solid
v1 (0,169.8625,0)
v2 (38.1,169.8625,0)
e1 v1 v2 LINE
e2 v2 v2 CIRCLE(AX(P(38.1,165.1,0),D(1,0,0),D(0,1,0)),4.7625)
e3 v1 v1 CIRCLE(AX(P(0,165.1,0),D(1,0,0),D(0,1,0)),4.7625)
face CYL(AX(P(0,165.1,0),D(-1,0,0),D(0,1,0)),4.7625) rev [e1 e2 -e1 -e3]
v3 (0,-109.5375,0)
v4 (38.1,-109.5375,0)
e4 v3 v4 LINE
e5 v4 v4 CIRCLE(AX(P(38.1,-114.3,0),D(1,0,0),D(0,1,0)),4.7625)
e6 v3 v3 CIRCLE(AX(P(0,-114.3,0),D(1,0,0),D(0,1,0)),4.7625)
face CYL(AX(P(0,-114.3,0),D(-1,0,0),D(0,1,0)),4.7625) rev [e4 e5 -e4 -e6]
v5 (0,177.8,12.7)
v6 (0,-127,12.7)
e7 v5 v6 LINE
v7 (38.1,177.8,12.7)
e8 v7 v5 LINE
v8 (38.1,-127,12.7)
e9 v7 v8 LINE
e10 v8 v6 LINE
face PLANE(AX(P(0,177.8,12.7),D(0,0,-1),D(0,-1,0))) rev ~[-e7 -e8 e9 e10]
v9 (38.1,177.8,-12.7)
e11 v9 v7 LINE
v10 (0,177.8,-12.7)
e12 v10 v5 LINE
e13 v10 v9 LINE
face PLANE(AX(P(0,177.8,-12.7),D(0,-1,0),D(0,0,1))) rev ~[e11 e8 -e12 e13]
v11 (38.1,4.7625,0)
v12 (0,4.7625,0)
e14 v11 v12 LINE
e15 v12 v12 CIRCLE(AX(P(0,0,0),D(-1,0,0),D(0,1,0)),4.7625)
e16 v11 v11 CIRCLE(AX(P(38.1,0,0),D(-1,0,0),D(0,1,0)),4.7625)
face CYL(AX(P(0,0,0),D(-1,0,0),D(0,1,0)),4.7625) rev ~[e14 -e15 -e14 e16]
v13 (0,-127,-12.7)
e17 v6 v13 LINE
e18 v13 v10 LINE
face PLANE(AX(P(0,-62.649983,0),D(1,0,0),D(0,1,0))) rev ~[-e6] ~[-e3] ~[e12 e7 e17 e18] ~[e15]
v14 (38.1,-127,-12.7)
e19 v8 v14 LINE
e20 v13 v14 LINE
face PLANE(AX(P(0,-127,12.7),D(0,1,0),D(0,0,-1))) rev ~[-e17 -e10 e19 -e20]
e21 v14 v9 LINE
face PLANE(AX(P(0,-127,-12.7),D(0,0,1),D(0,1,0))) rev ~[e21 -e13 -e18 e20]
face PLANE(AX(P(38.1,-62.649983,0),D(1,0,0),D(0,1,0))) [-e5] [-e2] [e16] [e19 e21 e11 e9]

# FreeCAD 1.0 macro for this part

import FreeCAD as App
import Part
import Sketcher
Q = App.Units.Quantity

doc = App.newDocument("Part")
params = doc.addObject("Spreadsheet::Sheet", "Params")
for row, (alias, value) in enumerate([
    ("sketch1_width", "12 in"),
    ("sketch1_height", "1 in"),
    ("sketch1_diameter", "0.375 in"),
    ("pad1_length", "1.5 in"),
    ("sketch2_width", "12 in"),
    ("sketch2_height", "1 in"),
    ("sketch2_diameter", "0.375 in"),
    ("pad2_length", "1 in"),
], start=1):
    params.set(f"A{row}", alias)
    params.set(f"B{row}", "=" + value)
    params.setAlias(f"B{row}", alias)

body = doc.addObject("PartDesign::Body", "Body")

sketch1 = body.newObject("Sketcher::SketchObject", "Sketch")
sketch1.AttachmentSupport = (doc.getObject("YZ_Plane"), [""])
sketch1.MapMode = "FlatFace"
sketch1.addGeometry([
    Part.LineSegment(App.Vector(-127, 12.7, 0), App.Vector(-127, -12.7, 0)),
    Part.LineSegment(App.Vector(-127, -12.7, 0), App.Vector(177.8, -12.7, 0)),
    Part.LineSegment(App.Vector(177.8, -12.7, 0), App.Vector(177.8, 12.7, 0)),
    Part.LineSegment(App.Vector(177.8, 12.7, 0), App.Vector(-127, 12.7, 0)),
    Part.Circle(App.Vector(-114.3, 0, 0), App.Vector(0, 0, 1), 4.7625),
    Part.Circle(App.Vector(165.1, 0, 0), App.Vector(0, 0, 1), 4.7625),
    Part.Circle(App.Vector(0, 0, 0), App.Vector(0, 0, 1), 4.7625),
], False)
sketch1.addConstraint([
    Sketcher.Constraint("Coincident", 0, 2, 1, 1),
    Sketcher.Constraint("Coincident", 1, 2, 2, 1),
    Sketcher.Constraint("Coincident", 2, 2, 3, 1),
    Sketcher.Constraint("Coincident", 3, 2, 0, 1),
    Sketcher.Constraint("Vertical", 0),
    Sketcher.Constraint("Horizontal", 1),
    Sketcher.Constraint("Vertical", 2),
    Sketcher.Constraint("Horizontal", 3),
    Sketcher.Constraint("Coincident", 6, 3, -1, 1),
    Sketcher.Constraint("Equal", 4, 5),
    Sketcher.Constraint("Equal", 5, 6),
    Sketcher.Constraint("PointOnObject", 4, 3, -1),
    Sketcher.Constraint("PointOnObject", 5, 3, -1),
    Sketcher.Constraint("DistanceX", 1, 1, 1, 2, Q("12 in")),
    Sketcher.Constraint("DistanceY", 0, 2, 0, 1, Q("1 in")),
    Sketcher.Constraint("Diameter", 4, Q("0.375 in")),
    Sketcher.Constraint("DistanceX", 0, 2, -1, 1, Q("5 in")),
    Sketcher.Constraint("DistanceX", 4, 3, 5, 3, Q("11 in")),
    Sketcher.Constraint("DistanceX", 4, 3, -1, 1, Q("4.5 in")),
    Sketcher.Constraint("DistanceY", 0, 2, -1, 1, Q("0.5 in")),
])
sketch1.setExpression("Constraints[13]", "Params.sketch1_width")
sketch1.setExpression("Constraints[14]", "Params.sketch1_height")
sketch1.setExpression("Constraints[15]", "Params.sketch1_diameter")
pad1 = body.newObject("PartDesign::Pad", "Pad")
pad1.Profile = sketch1
pad1.setExpression("Length", "Params.pad1_length")

sketch2 = body.newObject("Sketcher::SketchObject", "Sketch001")
sketch2.AttachmentSupport = (doc.getObject("YZ_Plane"), [""])
sketch2.MapMode = "FlatFace"
sketch2.addGeometry([
    Part.LineSegment(App.Vector(-127, 12.7, 0), App.Vector(-127, -12.7, 0)),
    Part.LineSegment(App.Vector(-127, -12.7, 0), App.Vector(177.8, -12.7, 0)),
    Part.LineSegment(App.Vector(177.8, -12.7, 0), App.Vector(177.8, 12.7, 0)),
    Part.LineSegment(App.Vector(177.8, 12.7, 0), App.Vector(-127, 12.7, 0)),
    Part.Circle(App.Vector(-114.3, 0, 0), App.Vector(0, 0, 1), 4.7625),
    Part.Circle(App.Vector(165.1, 0, 0), App.Vector(0, 0, 1), 4.7625),
    Part.Circle(App.Vector(0, 0, 0), App.Vector(0, 0, 1), 4.7625),
], False)
sketch2.addConstraint([
    Sketcher.Constraint("Coincident", 0, 2, 1, 1),
    Sketcher.Constraint("Coincident", 1, 2, 2, 1),
    Sketcher.Constraint("Coincident", 2, 2, 3, 1),
    Sketcher.Constraint("Coincident", 3, 2, 0, 1),
    Sketcher.Constraint("Vertical", 0),
    Sketcher.Constraint("Horizontal", 1),
    Sketcher.Constraint("Vertical", 2),
    Sketcher.Constraint("Horizontal", 3),
    Sketcher.Constraint("Coincident", 6, 3, -1, 1),
    Sketcher.Constraint("Equal", 4, 5),
    Sketcher.Constraint("Equal", 5, 6),
    Sketcher.Constraint("PointOnObject", 4, 3, -1),
    Sketcher.Constraint("PointOnObject", 5, 3, -1),
    Sketcher.Constraint("DistanceX", 1, 1, 1, 2, Q("12 in")),
    Sketcher.Constraint("DistanceY", 0, 2, 0, 1, Q("1 in")),
    Sketcher.Constraint("Diameter", 4, Q("0.375 in")),
    Sketcher.Constraint("DistanceX", 0, 2, -1, 1, Q("5 in")),
    Sketcher.Constraint("DistanceX", 4, 3, 5, 3, Q("11 in")),
    Sketcher.Constraint("DistanceX", 4, 3, -1, 1, Q("4.5 in")),
    Sketcher.Constraint("DistanceY", 0, 2, -1, 1, Q("0.5 in")),
])
sketch2.setExpression("Constraints[13]", "Params.sketch2_width")
sketch2.setExpression("Constraints[14]", "Params.sketch2_height")
sketch2.setExpression("Constraints[15]", "Params.sketch2_diameter")
pad2 = body.newObject("PartDesign::Pad", "Pad001")
pad2.Profile = sketch2
pad2.setExpression("Length", "Params.pad2_length")

doc.recompute()
